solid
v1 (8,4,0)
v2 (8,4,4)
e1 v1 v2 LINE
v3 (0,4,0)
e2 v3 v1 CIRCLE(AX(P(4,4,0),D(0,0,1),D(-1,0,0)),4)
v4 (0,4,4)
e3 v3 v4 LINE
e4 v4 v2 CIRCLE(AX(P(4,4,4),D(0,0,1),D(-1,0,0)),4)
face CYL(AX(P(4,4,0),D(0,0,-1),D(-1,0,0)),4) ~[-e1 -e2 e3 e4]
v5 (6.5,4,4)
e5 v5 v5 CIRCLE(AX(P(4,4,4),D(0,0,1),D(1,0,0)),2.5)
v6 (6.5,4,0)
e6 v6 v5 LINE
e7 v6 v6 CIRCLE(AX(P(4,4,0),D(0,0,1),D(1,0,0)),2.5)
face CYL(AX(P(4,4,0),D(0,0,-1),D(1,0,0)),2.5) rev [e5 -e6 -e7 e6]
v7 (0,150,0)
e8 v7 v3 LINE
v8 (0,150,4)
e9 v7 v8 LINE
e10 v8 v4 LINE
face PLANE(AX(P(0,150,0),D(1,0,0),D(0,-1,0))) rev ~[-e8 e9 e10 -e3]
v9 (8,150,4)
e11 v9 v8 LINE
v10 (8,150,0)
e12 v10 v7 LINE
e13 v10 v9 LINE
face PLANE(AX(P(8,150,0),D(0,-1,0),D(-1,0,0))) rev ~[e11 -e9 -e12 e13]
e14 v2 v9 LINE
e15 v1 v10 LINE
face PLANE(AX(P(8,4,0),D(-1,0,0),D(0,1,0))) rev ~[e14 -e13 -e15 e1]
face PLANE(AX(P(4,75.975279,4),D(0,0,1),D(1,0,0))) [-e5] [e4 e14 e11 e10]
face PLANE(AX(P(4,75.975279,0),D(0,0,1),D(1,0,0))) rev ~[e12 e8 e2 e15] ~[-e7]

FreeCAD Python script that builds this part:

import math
import FreeCAD as App
import Part
import Sketcher
from FreeCAD import Vector
Q = App.Units.Quantity

doc = App.newDocument("Part")
body = doc.addObject("PartDesign::Body", "Body")

sketch1 = body.newObject("Sketcher::SketchObject", "Sketch")
sketch1.AttachmentSupport = (doc.getObject("XY_Plane"), [""])
sketch1.MapMode = "FlatFace"
sketch1.addGeometry([
    Part.LineSegment(Vector(8, 150, 0), Vector(0, 150, 0)),
    Part.LineSegment(Vector(0, 150, 0), Vector(0, 4, 0)),
    Part.ArcOfCircle(Part.Circle(Vector(4, 4, 0), Vector(0, 0, 1), 4), math.radians(180), math.radians(360)),
    Part.LineSegment(Vector(8, 4, 0), Vector(8, 150, 0)),
    Part.Circle(Vector(4, 4, 0), Vector(0, 0, 1), 2.5),
], False)
sketch1.addConstraint([
    Sketcher.Constraint("Coincident", 0, 2, 1, 1),
    Sketcher.Constraint("Tangent", 1, 2, 2, 1),
    Sketcher.Constraint("Tangent", 2, 2, 3, 1),
    Sketcher.Constraint("Coincident", 3, 2, 0, 1),
    Sketcher.Constraint("Horizontal", 0),
    Sketcher.Constraint("Vertical", 1),
    Sketcher.Constraint("Vertical", 3),
    Sketcher.Constraint("Coincident", 4, 3, 2, 3),
    Sketcher.Constraint("PointOnObject", 0, 2, -2),
    Sketcher.Constraint("Diameter", 4, Q("5 mm")),
    Sketcher.Constraint("Radius", 2, Q("4 mm")),
    Sketcher.Constraint("DistanceY", 1, 2, 1, 1, Q("146 mm")),
    Sketcher.Constraint("DistanceY", -1, 1, 2, 3, Q("4 mm")),
])
pad1 = body.newObject("PartDesign::Pad", "Pad")
pad1.Profile = sketch1
pad1.Length = 4

doc.recompute()
